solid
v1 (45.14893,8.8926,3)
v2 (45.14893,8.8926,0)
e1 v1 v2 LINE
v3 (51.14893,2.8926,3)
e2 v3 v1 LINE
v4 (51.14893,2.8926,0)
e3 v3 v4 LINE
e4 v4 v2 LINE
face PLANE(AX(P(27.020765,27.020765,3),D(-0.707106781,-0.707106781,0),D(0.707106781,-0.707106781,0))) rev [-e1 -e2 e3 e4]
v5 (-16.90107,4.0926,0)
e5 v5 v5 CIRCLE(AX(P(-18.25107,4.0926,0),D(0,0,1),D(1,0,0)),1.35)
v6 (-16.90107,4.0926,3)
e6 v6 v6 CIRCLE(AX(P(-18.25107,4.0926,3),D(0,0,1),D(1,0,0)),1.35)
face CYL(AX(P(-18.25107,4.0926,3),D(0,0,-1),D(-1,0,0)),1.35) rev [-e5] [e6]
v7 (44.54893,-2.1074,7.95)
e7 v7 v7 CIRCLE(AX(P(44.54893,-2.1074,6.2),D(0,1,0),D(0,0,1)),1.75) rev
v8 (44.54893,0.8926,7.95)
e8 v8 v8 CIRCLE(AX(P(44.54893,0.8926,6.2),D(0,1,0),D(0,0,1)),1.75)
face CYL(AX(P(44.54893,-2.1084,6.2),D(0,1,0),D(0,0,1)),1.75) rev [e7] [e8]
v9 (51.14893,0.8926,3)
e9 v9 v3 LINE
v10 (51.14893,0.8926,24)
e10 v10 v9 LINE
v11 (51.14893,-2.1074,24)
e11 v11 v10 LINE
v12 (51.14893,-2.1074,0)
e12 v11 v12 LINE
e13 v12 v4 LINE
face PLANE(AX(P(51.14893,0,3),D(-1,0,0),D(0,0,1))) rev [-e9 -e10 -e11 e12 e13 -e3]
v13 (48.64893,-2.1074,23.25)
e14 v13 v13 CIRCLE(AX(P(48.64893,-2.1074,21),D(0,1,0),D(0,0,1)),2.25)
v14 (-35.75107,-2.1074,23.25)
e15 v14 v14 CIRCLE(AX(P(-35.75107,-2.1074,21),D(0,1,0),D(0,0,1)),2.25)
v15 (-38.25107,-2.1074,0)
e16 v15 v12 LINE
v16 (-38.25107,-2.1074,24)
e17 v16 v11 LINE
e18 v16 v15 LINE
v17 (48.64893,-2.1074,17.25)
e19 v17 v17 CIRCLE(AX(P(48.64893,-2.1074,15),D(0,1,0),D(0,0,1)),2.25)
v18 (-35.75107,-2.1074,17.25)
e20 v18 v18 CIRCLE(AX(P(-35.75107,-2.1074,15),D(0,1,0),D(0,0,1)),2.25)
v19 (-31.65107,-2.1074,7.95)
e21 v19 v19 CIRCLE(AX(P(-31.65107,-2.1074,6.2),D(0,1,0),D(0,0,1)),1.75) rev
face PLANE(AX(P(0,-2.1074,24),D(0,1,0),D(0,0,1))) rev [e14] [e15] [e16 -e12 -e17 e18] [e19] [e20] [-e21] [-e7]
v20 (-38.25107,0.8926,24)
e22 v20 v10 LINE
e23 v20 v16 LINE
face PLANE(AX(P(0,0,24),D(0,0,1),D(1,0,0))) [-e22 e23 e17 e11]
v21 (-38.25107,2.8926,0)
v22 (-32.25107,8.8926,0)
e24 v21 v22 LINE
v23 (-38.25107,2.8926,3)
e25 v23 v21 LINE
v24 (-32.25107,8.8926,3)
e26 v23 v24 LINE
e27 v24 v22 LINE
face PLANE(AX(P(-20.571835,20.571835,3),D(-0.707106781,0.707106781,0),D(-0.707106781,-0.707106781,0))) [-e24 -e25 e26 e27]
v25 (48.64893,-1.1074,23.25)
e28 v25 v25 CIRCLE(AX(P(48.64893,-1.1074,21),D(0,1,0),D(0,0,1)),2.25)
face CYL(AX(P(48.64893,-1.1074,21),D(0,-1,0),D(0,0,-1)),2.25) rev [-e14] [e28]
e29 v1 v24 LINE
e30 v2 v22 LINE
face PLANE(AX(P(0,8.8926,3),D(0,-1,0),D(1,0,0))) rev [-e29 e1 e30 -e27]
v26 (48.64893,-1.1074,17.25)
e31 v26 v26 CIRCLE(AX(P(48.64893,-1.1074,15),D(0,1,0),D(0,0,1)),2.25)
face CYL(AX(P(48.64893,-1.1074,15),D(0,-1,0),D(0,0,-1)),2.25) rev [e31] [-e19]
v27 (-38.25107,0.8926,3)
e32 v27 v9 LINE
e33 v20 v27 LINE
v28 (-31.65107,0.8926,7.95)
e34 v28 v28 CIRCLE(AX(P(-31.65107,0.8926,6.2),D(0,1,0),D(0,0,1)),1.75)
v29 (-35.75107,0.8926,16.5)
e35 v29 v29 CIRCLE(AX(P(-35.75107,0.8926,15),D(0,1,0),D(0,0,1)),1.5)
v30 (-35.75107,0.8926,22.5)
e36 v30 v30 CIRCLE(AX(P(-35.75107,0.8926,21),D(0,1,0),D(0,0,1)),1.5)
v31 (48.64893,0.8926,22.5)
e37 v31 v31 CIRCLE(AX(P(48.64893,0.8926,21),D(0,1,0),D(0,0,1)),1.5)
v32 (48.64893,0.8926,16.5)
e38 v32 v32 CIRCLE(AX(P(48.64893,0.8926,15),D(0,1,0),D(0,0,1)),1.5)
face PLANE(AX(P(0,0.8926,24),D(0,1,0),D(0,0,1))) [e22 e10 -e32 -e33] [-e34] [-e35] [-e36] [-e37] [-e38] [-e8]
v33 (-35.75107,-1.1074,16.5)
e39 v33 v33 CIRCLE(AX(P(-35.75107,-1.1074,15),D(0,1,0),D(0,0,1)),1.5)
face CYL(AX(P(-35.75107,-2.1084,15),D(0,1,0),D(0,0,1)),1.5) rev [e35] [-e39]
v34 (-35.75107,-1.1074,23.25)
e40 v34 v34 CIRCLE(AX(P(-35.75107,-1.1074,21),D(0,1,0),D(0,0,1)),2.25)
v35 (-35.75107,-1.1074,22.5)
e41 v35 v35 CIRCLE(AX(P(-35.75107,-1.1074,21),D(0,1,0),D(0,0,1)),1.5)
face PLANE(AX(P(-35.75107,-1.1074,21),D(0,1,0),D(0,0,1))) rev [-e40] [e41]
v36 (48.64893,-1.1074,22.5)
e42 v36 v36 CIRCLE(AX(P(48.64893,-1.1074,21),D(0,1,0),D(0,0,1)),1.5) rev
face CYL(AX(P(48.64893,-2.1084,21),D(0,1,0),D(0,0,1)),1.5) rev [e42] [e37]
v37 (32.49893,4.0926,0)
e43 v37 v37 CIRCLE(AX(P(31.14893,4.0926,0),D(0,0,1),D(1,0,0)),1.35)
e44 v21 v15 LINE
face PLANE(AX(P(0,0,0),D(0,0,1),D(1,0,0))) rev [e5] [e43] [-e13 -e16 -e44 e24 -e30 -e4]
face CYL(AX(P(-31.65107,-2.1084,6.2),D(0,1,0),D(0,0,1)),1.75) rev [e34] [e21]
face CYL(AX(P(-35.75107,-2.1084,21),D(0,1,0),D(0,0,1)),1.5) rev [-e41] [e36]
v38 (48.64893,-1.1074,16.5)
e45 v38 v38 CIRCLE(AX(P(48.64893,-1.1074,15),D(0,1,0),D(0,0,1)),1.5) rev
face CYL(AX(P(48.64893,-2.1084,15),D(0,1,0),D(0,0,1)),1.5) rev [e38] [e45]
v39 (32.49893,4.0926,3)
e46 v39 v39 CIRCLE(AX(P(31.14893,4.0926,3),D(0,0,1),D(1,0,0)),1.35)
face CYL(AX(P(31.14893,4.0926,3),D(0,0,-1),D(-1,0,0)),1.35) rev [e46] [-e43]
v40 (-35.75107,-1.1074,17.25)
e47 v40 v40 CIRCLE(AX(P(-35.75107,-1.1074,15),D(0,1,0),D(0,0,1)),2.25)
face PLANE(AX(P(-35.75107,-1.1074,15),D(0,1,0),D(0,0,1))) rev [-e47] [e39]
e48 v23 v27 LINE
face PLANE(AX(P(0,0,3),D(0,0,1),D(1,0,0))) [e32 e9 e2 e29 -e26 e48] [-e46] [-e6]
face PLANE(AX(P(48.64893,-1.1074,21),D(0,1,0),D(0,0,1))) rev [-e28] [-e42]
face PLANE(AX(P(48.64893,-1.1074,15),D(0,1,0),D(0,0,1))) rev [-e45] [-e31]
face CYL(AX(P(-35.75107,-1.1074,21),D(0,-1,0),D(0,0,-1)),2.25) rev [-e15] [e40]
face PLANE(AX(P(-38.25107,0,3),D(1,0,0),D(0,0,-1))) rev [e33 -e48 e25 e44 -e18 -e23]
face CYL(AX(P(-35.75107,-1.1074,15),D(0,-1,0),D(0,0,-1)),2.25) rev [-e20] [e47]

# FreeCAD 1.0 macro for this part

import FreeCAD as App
import Part
import Sketcher

V = App.Vector


def add_polygon(sketch, points):
    """Adds a closed chain of lines whose ends are joined by coincident constraints."""
    first, n = sketch.GeometryCount, len(points)
    for a, b in zip(points, points[1:] + points[:1]):
        sketch.addGeometry(Part.LineSegment(App.Vector(*a, 0), App.Vector(*b, 0)), False)
    for i in range(n):
        sketch.addConstraint(Sketcher.Constraint("Coincident", first + i, 2, first + (i + 1) % n, 1))

doc = App.newDocument("Part")
body = doc.addObject("PartDesign::Body", "Body")

# Sketch on XY plane
sketch1 = doc.addObject("Sketcher::SketchObject", "Sketch")
body.addObject(sketch1)
sketch1.AttachmentSupport = (doc.XY_Plane, [""])
sketch1.MapMode = "FlatFace"
add_polygon(sketch1, [(-32.3, 8.9), (-38.3, 2.9), (-38.3, 0.9), (51.1, 0.9), (51.1, 2.9), (45.1, 8.9)])  # lines 0-5
sketch1.addGeometry(Part.Circle(V(-18.3, 4.1, 0), V(0, 0, 1), 1.4), False)  # 6
sketch1.addGeometry(Part.Circle(V(31.1, 4.1, 0), V(0, 0, 1), 1.4), False)  # 7
sketch1.addConstraint(Sketcher.Constraint("Vertical", 1))
sketch1.addConstraint(Sketcher.Constraint("Horizontal", 2))
sketch1.addConstraint(Sketcher.Constraint("Vertical", 3))
sketch1.addConstraint(Sketcher.Constraint("Horizontal", 5))
sketch1.addConstraint(Sketcher.Constraint("Equal", 6, 7))
sketch1.addConstraint(Sketcher.Constraint("Perpendicular", 0, 4))
sketch1.addConstraint(Sketcher.Constraint("Horizontal", 6, 3, 7, 3))
sketch1.addConstraint(Sketcher.Constraint("Horizontal", 0, 2, 3, 2))
sketch1.addConstraint(Sketcher.Constraint("Equal", 0, 4))
sketch1.addConstraint(Sketcher.Constraint("Diameter", 6, 2.7))
sketch1.addConstraint(Sketcher.Constraint("DistanceY", 1, 2, 1, 1, 2.0))
sketch1.addConstraint(Sketcher.Constraint("DistanceX", 2, 1, 2, 2, 89.4))
sketch1.addConstraint(Sketcher.Constraint("DistanceX", 5, 2, 5, 1, 77.4))
sketch1.addConstraint(Sketcher.Constraint("DistanceX", 0, 2, 6, 3, 20.0))
sketch1.addConstraint(Sketcher.Constraint("DistanceX", 7, 3, 2, 2, 20.0))
sketch1.addConstraint(Sketcher.Constraint("DistanceY", 0, 2, 6, 3, 1.2))
sketch1.addConstraint(Sketcher.Constraint("DistanceY", -1, 1, 6, 3, 4.0926))
sketch1.addConstraint(Sketcher.Constraint("DistanceX", 6, 3, -1, 1, 18.25107))
pad1 = doc.addObject("PartDesign::Pad", "Pad")
body.addObject(pad1)
pad1.Profile = sketch1
pad1.Length = 3

# Sketch on XY plane
sketch2 = doc.addObject("Sketcher::SketchObject", "Sketch001")
body.addObject(sketch2)
sketch2.AttachmentSupport = (doc.XY_Plane, [""])
sketch2.MapMode = "FlatFace"
add_polygon(sketch2, [(-38.3, 0.9), (-38.3, -2.1), (51.1, -2.1), (51.1, 0.9)])  # lines 0-3
sketch2.addConstraint(Sketcher.Constraint("Vertical", 0))
sketch2.addConstraint(Sketcher.Constraint("Horizontal", 1))
sketch2.addConstraint(Sketcher.Constraint("Vertical", 2))
sketch2.addConstraint(Sketcher.Constraint("Horizontal", 3))
sketch2.addConstraint(Sketcher.Constraint("DistanceY", 0, 2, 0, 1, 3.0))
sketch2.addConstraint(Sketcher.Constraint("DistanceX", 1, 1, 1, 2, 89.4))
sketch2.addConstraint(Sketcher.Constraint("DistanceY", 0, 2, -1, 1, 2.1074))
sketch2.addConstraint(Sketcher.Constraint("DistanceX", 0, 2, -1, 1, 38.25107))
pad2 = doc.addObject("PartDesign::Pad", "Pad001")
body.addObject(pad2)
pad2.Profile = sketch2
pad2.Length = 24

# Sketch on XZ plane
sketch3 = doc.addObject("Sketcher::SketchObject", "Sketch002")
body.addObject(sketch3)
sketch3.AttachmentSupport = (doc.XZ_Plane, [""])
sketch3.MapMode = "FlatFace"
sketch3.AttachmentOffset = App.Placement(V(0, 0, -0.8926), App.Rotation())
sketch3.addGeometry(Part.Circle(V(48.6, 15, 0), V(0, 0, 1), 1.5), False)
sketch3.addConstraint(Sketcher.Constraint("Diameter", 0, 3.0))
sketch3.addConstraint(Sketcher.Constraint("DistanceY", -1, 1, 0, 3, 15.0))
sketch3.addConstraint(Sketcher.Constraint("DistanceX", -1, 1, 0, 3, 48.64893))
pocket1 = doc.addObject("PartDesign::Pocket", "Pocket")
body.addObject(pocket1)
pocket1.Profile = sketch3
pocket1.Type = "UpToFirst"
pocket1.Reversed = True

# Sketch on XZ plane
sketch4 = doc.addObject("Sketcher::SketchObject", "Sketch003")
body.addObject(sketch4)
sketch4.AttachmentSupport = (doc.XZ_Plane, [""])
sketch4.MapMode = "FlatFace"
sketch4.AttachmentOffset = App.Placement(V(0, 0, -0.8926), App.Rotation())
sketch4.addGeometry(Part.Circle(V(48.6, 21, 0), V(0, 0, 1), 1.5), False)
sketch4.addConstraint(Sketcher.Constraint("Diameter", 0, 3.0))
sketch4.addConstraint(Sketcher.Constraint("DistanceY", -1, 1, 0, 3, 21.0))
sketch4.addConstraint(Sketcher.Constraint("DistanceX", -1, 1, 0, 3, 48.64893))
pocket2 = doc.addObject("PartDesign::Pocket", "Pocket001")
body.addObject(pocket2)
pocket2.Profile = sketch4
pocket2.Type = "UpToFirst"
pocket2.Reversed = True

# Sketch on XZ plane
sketch5 = doc.addObject("Sketcher::SketchObject", "Sketch004")
body.addObject(sketch5)
sketch5.AttachmentSupport = (doc.XZ_Plane, [""])
sketch5.MapMode = "FlatFace"
sketch5.AttachmentOffset = App.Placement(V(0, 0, -0.8926), App.Rotation())
sketch5.addGeometry(Part.Circle(V(-35.8, 15, 0), V(0, 0, 1), 1.5), False)
sketch5.addConstraint(Sketcher.Constraint("Diameter", 0, 3.0))
sketch5.addConstraint(Sketcher.Constraint("DistanceY", -1, 1, 0, 3, 15.0))
sketch5.addConstraint(Sketcher.Constraint("DistanceX", 0, 3, -1, 1, 35.75107))
pocket3 = doc.addObject("PartDesign::Pocket", "Pocket002")
body.addObject(pocket3)
pocket3.Profile = sketch5
pocket3.Type = "UpToFirst"
pocket3.Reversed = True

# Sketch on XZ plane
sketch6 = doc.addObject("Sketcher::SketchObject", "Sketch005")
body.addObject(sketch6)
sketch6.AttachmentSupport = (doc.XZ_Plane, [""])
sketch6.MapMode = "FlatFace"
sketch6.AttachmentOffset = App.Placement(V(0, 0, -0.8926), App.Rotation())
sketch6.addGeometry(Part.Circle(V(-35.8, 21, 0), V(0, 0, 1), 1.5), False)
sketch6.addConstraint(Sketcher.Constraint("Diameter", 0, 3.0))
sketch6.addConstraint(Sketcher.Constraint("DistanceY", -1, 1, 0, 3, 21.0))
sketch6.addConstraint(Sketcher.Constraint("DistanceX", 0, 3, -1, 1, 35.75107))
pocket4 = doc.addObject("PartDesign::Pocket", "Pocket003")
body.addObject(pocket4)
pocket4.Profile = sketch6
pocket4.Type = "UpToFirst"
pocket4.Reversed = True

# Sketch on XZ plane
sketch7 = doc.addObject("Sketcher::SketchObject", "Sketch006")
body.addObject(sketch7)
sketch7.AttachmentSupport = (doc.XZ_Plane, [""])
sketch7.MapMode = "FlatFace"
sketch7.AttachmentOffset = App.Placement(V(0, 0, -0.8926), App.Rotation())
sketch7.addGeometry(Part.Circle(V(44.5, 6.2, 0), V(0, 0, 1), 1.8), False)
sketch7.addConstraint(Sketcher.Constraint("Diameter", 0, 3.5))
sketch7.addConstraint(Sketcher.Constraint("DistanceY", -1, 1, 0, 3, 6.2))
sketch7.addConstraint(Sketcher.Constraint("DistanceX", -1, 1, 0, 3, 44.54893))
pocket5 = doc.addObject("PartDesign::Pocket", "Pocket004")
body.addObject(pocket5)
pocket5.Profile = sketch7
pocket5.Type = "UpToFirst"
pocket5.Reversed = True

# Sketch on XZ plane
sketch8 = doc.addObject("Sketcher::SketchObject", "Sketch007")
body.addObject(sketch8)
sketch8.AttachmentSupport = (doc.XZ_Plane, [""])
sketch8.MapMode = "FlatFace"
sketch8.AttachmentOffset = App.Placement(V(0, 0, -0.8926), App.Rotation())
sketch8.addGeometry(Part.Circle(V(-31.7, 6.2, 0), V(0, 0, 1), 1.8), False)
sketch8.addConstraint(Sketcher.Constraint("Diameter", 0, 3.5))
sketch8.addConstraint(Sketcher.Constraint("DistanceY", -1, 1, 0, 3, 6.2))
sketch8.addConstraint(Sketcher.Constraint("DistanceX", 0, 3, -1, 1, 31.65107))
pocket6 = doc.addObject("PartDesign::Pocket", "Pocket005")
body.addObject(pocket6)
pocket6.Profile = sketch8
pocket6.Type = "UpToFirst"
pocket6.Reversed = True

# Sketch on XZ plane
sketch9 = doc.addObject("Sketcher::SketchObject", "Sketch008")
body.addObject(sketch9)
sketch9.AttachmentSupport = (doc.XZ_Plane, [""])
sketch9.MapMode = "FlatFace"
sketch9.AttachmentOffset = App.Placement(V(0, 0, 2.1074), App.Rotation())
sketch9.addGeometry(Part.Circle(V(-35.8, 15, 0), V(0, 0, 1), 2.2), False)
sketch9.addGeometry(Part.Circle(V(-35.8, 15, 0), V(0, 0, 1), 1.5), False)
sketch9.addGeometry(Part.Circle(V(-35.8, 21, 0), V(0, 0, 1), 2.2), False)
sketch9.addGeometry(Part.Circle(V(-35.8, 21, 0), V(0, 0, 1), 1.5), False)
sketch9.addGeometry(Part.Circle(V(48.6, 15, 0), V(0, 0, 1), 2.2), False)
sketch9.addGeometry(Part.Circle(V(48.6, 21, 0), V(0, 0, 1), 2.2), False)
sketch9.addConstraint(Sketcher.Constraint("Coincident", 1, 3, 0, 3))
sketch9.addConstraint(Sketcher.Constraint("Coincident", 3, 3, 2, 3))
sketch9.addConstraint(Sketcher.Constraint("Equal", 0, 2))
sketch9.addConstraint(Sketcher.Constraint("Equal", 1, 3))
sketch9.addConstraint(Sketcher.Constraint("Equal", 2, 4))
sketch9.addConstraint(Sketcher.Constraint("Equal", 4, 5))
sketch9.addConstraint(Sketcher.Constraint("Horizontal", 1, 3, 4, 3))
sketch9.addConstraint(Sketcher.Constraint("Horizontal", 3, 3, 5, 3))
sketch9.addConstraint(Sketcher.Constraint("Vertical", 1, 3, 2, 3))
sketch9.addConstraint(Sketcher.Constraint("Vertical", 4, 3, 5, 3))
sketch9.addConstraint(Sketcher.Constraint("Diameter", 1, 3.0))
sketch9.addConstraint(Sketcher.Constraint("Diameter", 0, 4.5))
sketch9.addConstraint(Sketcher.Constraint("DistanceY", -1, 1, 0, 3, 15.0))
sketch9.addConstraint(Sketcher.Constraint("DistanceY", -1, 1, 2, 3, 21.0))
sketch9.addConstraint(Sketcher.Constraint("DistanceX", 0, 3, 4, 3, 84.4))
sketch9.addConstraint(Sketcher.Constraint("DistanceX", 0, 3, -1, 1, 35.75107))
pocket7 = doc.addObject("PartDesign::Pocket", "Pocket006")
body.addObject(pocket7)
pocket7.Profile = sketch9
pocket7.Length = 1

doc.recompute()
